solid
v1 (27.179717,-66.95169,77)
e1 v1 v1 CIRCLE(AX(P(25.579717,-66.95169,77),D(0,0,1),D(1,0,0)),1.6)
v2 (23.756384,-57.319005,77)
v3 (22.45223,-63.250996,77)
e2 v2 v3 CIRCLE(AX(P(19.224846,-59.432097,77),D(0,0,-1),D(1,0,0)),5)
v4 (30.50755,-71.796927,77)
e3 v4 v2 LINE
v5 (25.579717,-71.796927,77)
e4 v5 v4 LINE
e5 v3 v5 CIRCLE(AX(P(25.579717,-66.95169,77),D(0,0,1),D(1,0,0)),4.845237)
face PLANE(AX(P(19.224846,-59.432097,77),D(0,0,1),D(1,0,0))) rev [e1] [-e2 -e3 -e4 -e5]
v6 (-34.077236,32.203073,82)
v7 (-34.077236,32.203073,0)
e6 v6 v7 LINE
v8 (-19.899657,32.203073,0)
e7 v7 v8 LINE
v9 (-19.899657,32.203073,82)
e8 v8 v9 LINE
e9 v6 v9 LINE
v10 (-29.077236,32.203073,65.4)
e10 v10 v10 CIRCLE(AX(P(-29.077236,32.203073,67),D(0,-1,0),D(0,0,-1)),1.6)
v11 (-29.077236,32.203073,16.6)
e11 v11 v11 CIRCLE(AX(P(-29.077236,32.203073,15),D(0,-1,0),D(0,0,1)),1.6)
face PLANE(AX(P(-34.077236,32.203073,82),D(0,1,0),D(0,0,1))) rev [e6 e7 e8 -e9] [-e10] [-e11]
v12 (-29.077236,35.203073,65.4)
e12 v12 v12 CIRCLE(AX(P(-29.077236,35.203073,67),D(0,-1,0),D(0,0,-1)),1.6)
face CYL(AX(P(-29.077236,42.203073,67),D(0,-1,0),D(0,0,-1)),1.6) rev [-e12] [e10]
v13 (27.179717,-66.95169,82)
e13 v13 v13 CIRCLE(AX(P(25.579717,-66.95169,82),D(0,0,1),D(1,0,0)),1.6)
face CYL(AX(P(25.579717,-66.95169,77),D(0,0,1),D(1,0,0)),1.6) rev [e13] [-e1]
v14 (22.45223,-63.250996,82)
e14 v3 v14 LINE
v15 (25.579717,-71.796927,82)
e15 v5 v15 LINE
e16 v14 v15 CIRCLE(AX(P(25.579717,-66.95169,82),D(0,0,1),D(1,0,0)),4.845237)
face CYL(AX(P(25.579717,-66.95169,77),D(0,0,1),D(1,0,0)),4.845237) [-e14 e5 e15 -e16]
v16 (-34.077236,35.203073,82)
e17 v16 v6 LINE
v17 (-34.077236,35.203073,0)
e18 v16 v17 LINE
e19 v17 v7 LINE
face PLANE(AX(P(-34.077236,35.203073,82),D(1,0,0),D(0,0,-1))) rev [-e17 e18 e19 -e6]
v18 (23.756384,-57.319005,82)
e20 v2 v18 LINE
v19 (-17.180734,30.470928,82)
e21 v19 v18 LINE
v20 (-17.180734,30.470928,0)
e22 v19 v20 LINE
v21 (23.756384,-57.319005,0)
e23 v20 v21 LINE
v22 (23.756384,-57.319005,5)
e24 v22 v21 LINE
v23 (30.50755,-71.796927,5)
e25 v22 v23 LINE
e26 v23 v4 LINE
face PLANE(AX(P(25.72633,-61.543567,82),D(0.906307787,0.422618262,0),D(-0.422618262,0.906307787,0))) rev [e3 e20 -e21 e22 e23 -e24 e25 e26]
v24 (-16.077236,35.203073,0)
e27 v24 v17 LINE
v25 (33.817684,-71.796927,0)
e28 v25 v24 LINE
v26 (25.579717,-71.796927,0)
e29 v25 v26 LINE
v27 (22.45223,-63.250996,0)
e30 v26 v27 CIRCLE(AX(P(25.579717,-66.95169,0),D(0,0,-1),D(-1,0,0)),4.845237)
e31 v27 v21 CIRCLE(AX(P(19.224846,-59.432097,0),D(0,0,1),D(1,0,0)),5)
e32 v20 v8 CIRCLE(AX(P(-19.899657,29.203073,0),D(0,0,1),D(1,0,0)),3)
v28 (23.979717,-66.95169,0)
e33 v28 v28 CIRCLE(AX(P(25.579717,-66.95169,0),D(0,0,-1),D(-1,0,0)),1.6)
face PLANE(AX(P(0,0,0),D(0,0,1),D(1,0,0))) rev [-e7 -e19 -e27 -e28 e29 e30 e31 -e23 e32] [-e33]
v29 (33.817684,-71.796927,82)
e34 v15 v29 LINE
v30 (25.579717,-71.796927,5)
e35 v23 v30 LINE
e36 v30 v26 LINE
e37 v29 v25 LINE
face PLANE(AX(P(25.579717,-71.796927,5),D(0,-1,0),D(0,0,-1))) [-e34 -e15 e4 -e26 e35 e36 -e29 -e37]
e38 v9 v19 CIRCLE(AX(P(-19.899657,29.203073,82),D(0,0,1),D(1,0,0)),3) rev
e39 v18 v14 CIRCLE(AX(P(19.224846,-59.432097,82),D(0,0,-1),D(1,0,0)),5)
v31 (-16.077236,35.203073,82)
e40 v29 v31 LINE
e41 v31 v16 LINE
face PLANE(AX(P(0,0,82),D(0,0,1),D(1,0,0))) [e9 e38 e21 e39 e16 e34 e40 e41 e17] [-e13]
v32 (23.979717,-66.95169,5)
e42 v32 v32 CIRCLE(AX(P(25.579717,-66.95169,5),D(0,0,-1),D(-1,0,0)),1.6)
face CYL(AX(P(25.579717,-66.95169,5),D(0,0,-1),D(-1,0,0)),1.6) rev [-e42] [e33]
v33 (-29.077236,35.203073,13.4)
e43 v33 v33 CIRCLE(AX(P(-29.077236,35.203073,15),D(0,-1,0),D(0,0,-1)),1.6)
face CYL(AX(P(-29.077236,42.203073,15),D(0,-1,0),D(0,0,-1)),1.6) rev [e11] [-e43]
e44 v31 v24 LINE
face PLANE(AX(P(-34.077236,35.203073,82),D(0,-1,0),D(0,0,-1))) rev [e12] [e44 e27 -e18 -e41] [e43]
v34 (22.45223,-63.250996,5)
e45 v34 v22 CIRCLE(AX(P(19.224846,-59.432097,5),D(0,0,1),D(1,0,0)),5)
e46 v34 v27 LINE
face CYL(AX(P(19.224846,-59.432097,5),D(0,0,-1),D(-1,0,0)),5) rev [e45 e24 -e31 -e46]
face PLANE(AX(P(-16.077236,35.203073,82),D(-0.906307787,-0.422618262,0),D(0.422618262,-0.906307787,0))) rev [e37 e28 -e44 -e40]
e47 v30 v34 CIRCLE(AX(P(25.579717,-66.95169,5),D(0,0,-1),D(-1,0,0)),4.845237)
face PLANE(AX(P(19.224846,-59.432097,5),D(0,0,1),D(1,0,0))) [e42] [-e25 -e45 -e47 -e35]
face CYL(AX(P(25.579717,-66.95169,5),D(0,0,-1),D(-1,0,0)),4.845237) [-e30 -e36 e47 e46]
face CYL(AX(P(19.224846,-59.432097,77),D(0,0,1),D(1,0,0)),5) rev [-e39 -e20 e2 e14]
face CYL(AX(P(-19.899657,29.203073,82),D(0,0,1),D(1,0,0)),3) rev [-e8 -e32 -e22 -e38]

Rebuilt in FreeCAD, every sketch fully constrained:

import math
import FreeCAD as App
import Part
import Sketcher
from FreeCAD import Vector
Q = App.Units.Quantity


def edges_at(feature, points):
    """Names of the edges that pass closest to the given points."""
    edges = feature.Shape.Edges
    near = lambda p: min(range(len(edges)), key=lambda i: edges[i].distToShape(Part.Vertex(*p))[0])
    return sorted({f"Edge{near(p) + 1}" for p in points})

doc = App.newDocument("Part")
body = doc.addObject("PartDesign::Body", "Body")

sketch1 = doc.addObject("Sketcher::SketchObject", "Sketch")
body.addObject(sketch1)
sketch1.AttachmentSupport = (doc.XY_Plane, [""])
sketch1.MapMode = "FlatFace"
sketch1.addGeometry([
    Part.LineSegment(Vector(25.7, -61.5, 0), Vector(30.6, -72, 0)),
    Part.LineSegment(Vector(30.6, -72, 0), Vector(33.9, -72, 0)),
    Part.LineSegment(Vector(33.9, -72, 0), Vector(-16.1, 35.2, 0)),
    Part.LineSegment(Vector(-16.1, 35.2, 0), Vector(-34.1, 35.2, 0)),
    Part.LineSegment(Vector(-34.1, 35.2, 0), Vector(-34.1, 32.2, 0)),
    Part.LineSegment(Vector(-34.1, 32.2, 0), Vector(-18, 32.2, 0)),
    Part.LineSegment(Vector(-18, 32.2, 0), Vector(25.7, -61.5, 0)),
], False)
sketch1.addConstraint([
    Sketcher.Constraint("Coincident", 0, 2, 1, 1),
    Sketcher.Constraint("Coincident", 1, 2, 2, 1),
    Sketcher.Constraint("Coincident", 2, 2, 3, 1),
    Sketcher.Constraint("Coincident", 3, 2, 4, 1),
    Sketcher.Constraint("Coincident", 4, 2, 5, 1),
    Sketcher.Constraint("Coincident", 5, 2, 6, 1),
    Sketcher.Constraint("Coincident", 6, 2, 0, 1),
    Sketcher.Constraint("Horizontal", 1),
    Sketcher.Constraint("Horizontal", 3),
    Sketcher.Constraint("Vertical", 4),
    Sketcher.Constraint("Horizontal", 5),
    Sketcher.Constraint("Parallel", 0, 2),
    Sketcher.Constraint("Parallel", 2, 6),
    Sketcher.Constraint("DistanceX", 3, 2, 3, 1, Q("18 mm")),
    Sketcher.Constraint("DistanceY", 4, 2, 4, 1, Q("3 mm")),
    Sketcher.Constraint("Angle", 0, Q("-65 deg")),
    Sketcher.Constraint("Distance", 2, Q("118.2322 mm")),
    Sketcher.Constraint("DistanceX", 5, 1, 5, 2, Q("16.088789 mm")),
    Sketcher.Constraint("DistanceY", 0, 2, -1, 1, Q("71.95169 mm")),
    Sketcher.Constraint("DistanceX", -1, 1, 1, 2, Q("33.889851 mm")),
    Sketcher.Constraint("DistanceX", -1, 1, 6, 2, Q("25.72633 mm")),
])
pad1 = doc.addObject("PartDesign::Pad", "Pad")
body.addObject(pad1)
pad1.Profile = sketch1
pad1.Length = 82

sketch2 = doc.addObject("Sketcher::SketchObject", "Sketch001")
body.addObject(sketch2)
sketch2.AttachmentSupport = (doc.XZ_Plane, [""])
sketch2.MapMode = "FlatFace"
sketch2.AttachmentOffset = App.Placement(Vector(0, 0, -32.203073), App.Rotation())
sketch2.addGeometry([
    Part.Circle(Vector(-29.1, 67, 0), Vector(0, 0, 1), 1.6),
    Part.Circle(Vector(-29.1, 15, 0), Vector(0, 0, 1), 1.6),
], False)
sketch2.addConstraint([
    Sketcher.Constraint("Equal", 0, 1),
    Sketcher.Constraint("Vertical", 0, 3, 1, 3),
    Sketcher.Constraint("Diameter", 0, Q("3.2 mm")),
    Sketcher.Constraint("DistanceY", -1, 1, 0, 3, Q("67 mm")),
    Sketcher.Constraint("DistanceY", -1, 1, 1, 3, Q("15 mm")),
    Sketcher.Constraint("DistanceX", 0, 3, -1, 1, Q("29.077236 mm")),
])
pocket1 = doc.addObject("PartDesign::Pocket", "Pocket")
body.addObject(pocket1)
pocket1.Profile = sketch2
pocket1.Length = 10
doc.recompute()

fillet = doc.addObject("PartDesign::Fillet", "Fillet")
body.addObject(fillet)
fillet.Base = (pocket1, edges_at(pocket1, [(-17.988, 32.203, 41)]))
fillet.Radius = 3

sketch3 = doc.addObject("Sketcher::SketchObject", "Sketch002")
body.addObject(sketch3)
sketch3.AttachmentSupport = (doc.XY_Plane, [""])
sketch3.MapMode = "FlatFace"
sketch3.addGeometry([
    Part.LineSegment(Vector(30.5, -71.8, 0), Vector(25.6, -71.8, 0)),
    Part.ArcOfCircle(Part.Circle(Vector(25.6, -67, 0), Vector(0, 0, 1), 4.8), math.radians(130), math.radians(270)),
    Part.ArcOfCircle(Part.Circle(Vector(19.2, -59.4, 0), Vector(0, 0, 1), 5), math.radians(-50), math.radians(25)),
    Part.LineSegment(Vector(23.8, -57.3, 0), Vector(30.5, -71.8, 0)),
    Part.Circle(Vector(25.6, -67, 0), Vector(0, 0, 1), 1.6),
], False)
sketch3.addConstraint([
    Sketcher.Constraint("Tangent", 0, 2, 1, 2),
    Sketcher.Constraint("Tangent", 1, 1, 2, 1),
    Sketcher.Constraint("Tangent", 2, 2, 3, 1),
    Sketcher.Constraint("Coincident", 3, 2, 0, 1),
    Sketcher.Constraint("Horizontal", 0),
    Sketcher.Constraint("Coincident", 4, 3, 1, 3),
    Sketcher.Constraint("Radius", 2, Q("5 mm")),
    Sketcher.Constraint("Diameter", 4, Q("3.2 mm")),
    Sketcher.Constraint("Angle", 3, Q("-65 deg")),
    Sketcher.Constraint("Radius", 1, Q("4.845237 mm")),
    Sketcher.Constraint("DistanceY", 1, 1, 2, 3, Q("3.818899 mm")),
    Sketcher.Constraint("DistanceY", 1, 3, -1, 1, Q("66.95169 mm")),
    Sketcher.Constraint("DistanceX", -1, 1, 1, 1, Q("22.45223 mm")),
])
pad2 = doc.addObject("PartDesign::Pad", "Pad001")
body.addObject(pad2)
pad2.Profile = sketch3
pad2.Length = 5

sketch4 = doc.addObject("Sketcher::SketchObject", "Sketch003")
body.addObject(sketch4)
sketch4.AttachmentSupport = (doc.XY_Plane, [""])
sketch4.MapMode = "FlatFace"
sketch4.AttachmentOffset = App.Placement(Vector(0, 0, 77), App.Rotation())
sketch4.addGeometry([
    Part.LineSegment(Vector(25.6, -71.8, 0), Vector(30.5, -71.8, 0)),
    Part.LineSegment(Vector(30.5, -71.8, 0), Vector(23.8, -57.3, 0)),
    Part.ArcOfCircle(Part.Circle(Vector(19.2, -59.4, 0), Vector(0, 0, 1), 5), math.radians(-50), math.radians(25)),
    Part.ArcOfCircle(Part.Circle(Vector(25.6, -67, 0), Vector(0, 0, 1), 4.8), math.radians(130), math.radians(270)),
    Part.Circle(Vector(25.6, -67, 0), Vector(0, 0, 1), 1.6),
], False)
sketch4.addConstraint([
    Sketcher.Constraint("Coincident", 0, 2, 1, 1),
    Sketcher.Constraint("Tangent", 1, 2, 2, 2),
    Sketcher.Constraint("Tangent", 2, 1, 3, 1),
    Sketcher.Constraint("Tangent", 3, 2, 0, 1),
    Sketcher.Constraint("Horizontal", 0),
    Sketcher.Constraint("Coincident", 4, 3, 3, 3),
    Sketcher.Constraint("Radius", 2, Q("5 mm")),
    Sketcher.Constraint("Diameter", 4, Q("3.2 mm")),
    Sketcher.Constraint("Angle", 1, Q("115 deg")),
    Sketcher.Constraint("Radius", 3, Q("4.845237 mm")),
    Sketcher.Constraint("DistanceY", 2, 1, 2, 3, Q("3.818899 mm")),
    Sketcher.Constraint("DistanceY", 3, 3, -1, 1, Q("66.95169 mm")),
    Sketcher.Constraint("DistanceX", -1, 1, 0, 2, Q("30.50755 mm")),
])
pad3 = doc.addObject("PartDesign::Pad", "Pad002")
body.addObject(pad3)
pad3.Profile = sketch4
pad3.Length = 5

sketch5 = doc.addObject("Sketcher::SketchObject", "Sketch004")
body.addObject(sketch5)
sketch5.AttachmentSupport = (doc.XY_Plane, [""])
sketch5.MapMode = "FlatFace"
sketch5.AttachmentOffset = App.Placement(Vector(0, 0, 82), App.Rotation())
sketch5.addGeometry([
    Part.LineSegment(Vector(30.5, -71.8, 0), Vector(30.5, -72.7, 0)),
    Part.LineSegment(Vector(30.5, -72.7, 0), Vector(36.5, -72.7, 0)),
    Part.LineSegment(Vector(36.5, -72.7, 0), Vector(36.5, -71.8, 0)),
    Part.LineSegment(Vector(36.5, -71.8, 0), Vector(30.5, -71.8, 0)),
], False)
sketch5.addConstraint([
    Sketcher.Constraint("Coincident", 0, 2, 1, 1),
    Sketcher.Constraint("Coincident", 1, 2, 2, 1),
    Sketcher.Constraint("Coincident", 2, 2, 3, 1),
    Sketcher.Constraint("Coincident", 3, 2, 0, 1),
    Sketcher.Constraint("Vertical", 0),
    Sketcher.Constraint("Horizontal", 1),
    Sketcher.Constraint("Vertical", 2),
    Sketcher.Constraint("Horizontal", 3),
    Sketcher.Constraint("DistanceX", 1, 1, 1, 2, Q("5.946089 mm")),
    Sketcher.Constraint("DistanceY", 0, 2, 0, 1, Q("0.87333 mm")),
    Sketcher.Constraint("DistanceX", -1, 1, 0, 2, Q("30.50755 mm")),
    Sketcher.Constraint("DistanceY", 0, 2, -1, 1, Q("72.670256 mm")),
])
pocket2 = doc.addObject("PartDesign::Pocket", "Pocket001")
body.addObject(pocket2)
pocket2.Profile = sketch5
pocket2.Type = "ThroughAll"

doc.recompute()
